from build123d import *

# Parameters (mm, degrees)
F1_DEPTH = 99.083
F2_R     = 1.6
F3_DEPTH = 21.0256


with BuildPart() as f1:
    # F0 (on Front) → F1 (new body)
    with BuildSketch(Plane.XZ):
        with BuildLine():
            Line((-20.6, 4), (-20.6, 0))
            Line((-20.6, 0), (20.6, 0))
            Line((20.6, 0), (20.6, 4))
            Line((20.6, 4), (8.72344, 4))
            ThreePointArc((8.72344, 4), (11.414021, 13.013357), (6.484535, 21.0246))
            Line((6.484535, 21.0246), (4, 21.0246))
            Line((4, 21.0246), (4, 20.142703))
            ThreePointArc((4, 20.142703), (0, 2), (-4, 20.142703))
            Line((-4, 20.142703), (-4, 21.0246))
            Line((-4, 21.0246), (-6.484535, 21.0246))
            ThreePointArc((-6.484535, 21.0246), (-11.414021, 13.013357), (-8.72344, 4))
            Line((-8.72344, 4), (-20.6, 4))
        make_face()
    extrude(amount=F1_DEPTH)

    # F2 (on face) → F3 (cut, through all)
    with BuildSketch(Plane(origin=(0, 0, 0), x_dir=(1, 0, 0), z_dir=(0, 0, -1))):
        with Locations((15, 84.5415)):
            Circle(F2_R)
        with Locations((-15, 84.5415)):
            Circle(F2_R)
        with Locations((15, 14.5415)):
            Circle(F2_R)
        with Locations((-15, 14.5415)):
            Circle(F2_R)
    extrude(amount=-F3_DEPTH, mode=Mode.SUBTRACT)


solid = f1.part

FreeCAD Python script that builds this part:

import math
import FreeCAD as App
import Part
import Sketcher
Q = App.Units.Quantity

doc = App.newDocument("Part")
body = doc.addObject("PartDesign::Body", "Body")

sketch1 = body.newObject("Sketcher::SketchObject", "Sketch")
sketch1.AttachmentSupport = (doc.getObject("XZ_Plane"), [""])
sketch1.MapMode = "FlatFace"
sketch1.addGeometry([
    Part.LineSegment(App.Vector(-20.6, 4, 0), App.Vector(-20.6, 0, 0)),
    Part.LineSegment(App.Vector(-20.6, 0, 0), App.Vector(20.6, 0, 0)),
    Part.LineSegment(App.Vector(20.6, 0, 0), App.Vector(20.6, 4, 0)),
    Part.LineSegment(App.Vector(20.6, 4, 0), App.Vector(8.72344, 4, 0)),
    Part.ArcOfCircle(Part.Circle(App.Vector(0, 11.5123, 0), App.Vector(0, 0, 1), 11.5123), math.radians(-40.733797), math.radians(55.717745)),
    Part.LineSegment(App.Vector(6.484535, 21.0246, 0), App.Vector(4, 21.0246, 0)),
    Part.LineSegment(App.Vector(4, 21.0246, 0), App.Vector(4, 20.142703, 0)),
    Part.ArcOfCircle(Part.Circle(App.Vector(0, 11.5123, 0), App.Vector(0, 0, 1), 9.5123), math.radians(114.866675), math.radians(425.133325)),
    Part.LineSegment(App.Vector(-4, 20.142703, 0), App.Vector(-4, 21.0246, 0)),
    Part.LineSegment(App.Vector(-4, 21.0246, 0), App.Vector(-6.484535, 21.0246, 0)),
    Part.ArcOfCircle(Part.Circle(App.Vector(0, 11.5123, 0), App.Vector(0, 0, 1), 11.5123), math.radians(124.282255), math.radians(220.733797)),
    Part.LineSegment(App.Vector(-8.72344, 4, 0), App.Vector(-20.6, 4, 0)),
], False)
sketch1.addConstraint([
    Sketcher.Constraint("Coincident", 0, 2, 1, 1),
    Sketcher.Constraint("Coincident", 1, 2, 2, 1),
    Sketcher.Constraint("Coincident", 2, 2, 3, 1),
    Sketcher.Constraint("Coincident", 3, 2, 4, 1),
    Sketcher.Constraint("Coincident", 4, 2, 5, 1),
    Sketcher.Constraint("Coincident", 5, 2, 6, 1),
    Sketcher.Constraint("Coincident", 6, 2, 7, 2),
    Sketcher.Constraint("Coincident", 7, 1, 8, 1),
    Sketcher.Constraint("Coincident", 8, 2, 9, 1),
    Sketcher.Constraint("Coincident", 9, 2, 10, 1),
    Sketcher.Constraint("Coincident", 10, 2, 11, 1),
    Sketcher.Constraint("Coincident", 11, 2, 0, 1),
    Sketcher.Constraint("Vertical", 0),
    Sketcher.Constraint("Horizontal", 1),
    Sketcher.Constraint("Vertical", 2),
    Sketcher.Constraint("Horizontal", 3),
    Sketcher.Constraint("Horizontal", 5),
    Sketcher.Constraint("Vertical", 6),
    Sketcher.Constraint("Vertical", 8),
    Sketcher.Constraint("Horizontal", 9),
    Sketcher.Constraint("Horizontal", 11),
    Sketcher.Constraint("Coincident", 7, 3, 4, 3),
    Sketcher.Constraint("Coincident", 10, 3, 4, 3),
    Sketcher.Constraint("Equal", 4, 10),
    Sketcher.Constraint("Symmetric", 0, 2, 1, 2, -1, 1),
    Sketcher.Constraint("Symmetric", 6, 2, 7, 1, -2),
    Sketcher.Constraint("Horizontal", 5, 2, 8, 2),
    Sketcher.Constraint("Horizontal", 3, 2, 10, 2),
    Sketcher.Constraint("DistanceY", 0, 2, 0, 1, Q("4 mm")),
    Sketcher.Constraint("DistanceX", 1, 1, 1, 2, Q("41.2 mm")),
    Sketcher.Constraint("DistanceX", -1, 1, 5, 2, Q("4 mm")),
    Sketcher.Constraint("Radius", 4, Q("11.5123 mm")),
    Sketcher.Constraint("Radius", 7, Q("9.5123 mm")),
    Sketcher.Constraint("DistanceX", 3, 2, 3, 1, Q("11.87656 mm")),
    Sketcher.Constraint("DistanceY", -1, 1, 4, 2, Q("21.0246 mm")),
])
pad1 = body.newObject("PartDesign::Pad", "Pad")
pad1.Profile = sketch1
pad1.Length = 99.083

sketch2 = body.newObject("Sketcher::SketchObject", "Sketch001")
sketch2.AttachmentSupport = (doc.getObject("XY_Plane"), [""])
sketch2.MapMode = "FlatFace"
sketch2.addGeometry([
    Part.Circle(App.Vector(15, -84.5415, 0), App.Vector(0, 0, 1), 1.6),
    Part.Circle(App.Vector(-15, -84.5415, 0), App.Vector(0, 0, 1), 1.6),
    Part.Circle(App.Vector(15, -14.5415, 0), App.Vector(0, 0, 1), 1.6),
    Part.Circle(App.Vector(-15, -14.5415, 0), App.Vector(0, 0, 1), 1.6),
], False)
sketch2.addConstraint([
    Sketcher.Constraint("Equal", 0, 1),
    Sketcher.Constraint("Equal", 1, 2),
    Sketcher.Constraint("Equal", 2, 3),
    Sketcher.Constraint("Symmetric", 0, 3, 1, 3, -2),
    Sketcher.Constraint("Symmetric", 2, 3, 3, 3, -2),
    Sketcher.Constraint("Vertical", 0, 3, 2, 3),
    Sketcher.Constraint("Diameter", 0, Q("3.2 mm")),
    Sketcher.Constraint("DistanceX", -1, 1, 0, 3, Q("15 mm")),
    Sketcher.Constraint("DistanceY", 0, 3, 2, 3, Q("70 mm")),
    Sketcher.Constraint("DistanceY", 0, 3, -1, 1, Q("84.5415 mm")),
])
pocket1 = body.newObject("PartDesign::Pocket", "Pocket")
pocket1.Profile = sketch2
pocket1.Type = "ThroughAll"
pocket1.Reversed = True

doc.recompute()
